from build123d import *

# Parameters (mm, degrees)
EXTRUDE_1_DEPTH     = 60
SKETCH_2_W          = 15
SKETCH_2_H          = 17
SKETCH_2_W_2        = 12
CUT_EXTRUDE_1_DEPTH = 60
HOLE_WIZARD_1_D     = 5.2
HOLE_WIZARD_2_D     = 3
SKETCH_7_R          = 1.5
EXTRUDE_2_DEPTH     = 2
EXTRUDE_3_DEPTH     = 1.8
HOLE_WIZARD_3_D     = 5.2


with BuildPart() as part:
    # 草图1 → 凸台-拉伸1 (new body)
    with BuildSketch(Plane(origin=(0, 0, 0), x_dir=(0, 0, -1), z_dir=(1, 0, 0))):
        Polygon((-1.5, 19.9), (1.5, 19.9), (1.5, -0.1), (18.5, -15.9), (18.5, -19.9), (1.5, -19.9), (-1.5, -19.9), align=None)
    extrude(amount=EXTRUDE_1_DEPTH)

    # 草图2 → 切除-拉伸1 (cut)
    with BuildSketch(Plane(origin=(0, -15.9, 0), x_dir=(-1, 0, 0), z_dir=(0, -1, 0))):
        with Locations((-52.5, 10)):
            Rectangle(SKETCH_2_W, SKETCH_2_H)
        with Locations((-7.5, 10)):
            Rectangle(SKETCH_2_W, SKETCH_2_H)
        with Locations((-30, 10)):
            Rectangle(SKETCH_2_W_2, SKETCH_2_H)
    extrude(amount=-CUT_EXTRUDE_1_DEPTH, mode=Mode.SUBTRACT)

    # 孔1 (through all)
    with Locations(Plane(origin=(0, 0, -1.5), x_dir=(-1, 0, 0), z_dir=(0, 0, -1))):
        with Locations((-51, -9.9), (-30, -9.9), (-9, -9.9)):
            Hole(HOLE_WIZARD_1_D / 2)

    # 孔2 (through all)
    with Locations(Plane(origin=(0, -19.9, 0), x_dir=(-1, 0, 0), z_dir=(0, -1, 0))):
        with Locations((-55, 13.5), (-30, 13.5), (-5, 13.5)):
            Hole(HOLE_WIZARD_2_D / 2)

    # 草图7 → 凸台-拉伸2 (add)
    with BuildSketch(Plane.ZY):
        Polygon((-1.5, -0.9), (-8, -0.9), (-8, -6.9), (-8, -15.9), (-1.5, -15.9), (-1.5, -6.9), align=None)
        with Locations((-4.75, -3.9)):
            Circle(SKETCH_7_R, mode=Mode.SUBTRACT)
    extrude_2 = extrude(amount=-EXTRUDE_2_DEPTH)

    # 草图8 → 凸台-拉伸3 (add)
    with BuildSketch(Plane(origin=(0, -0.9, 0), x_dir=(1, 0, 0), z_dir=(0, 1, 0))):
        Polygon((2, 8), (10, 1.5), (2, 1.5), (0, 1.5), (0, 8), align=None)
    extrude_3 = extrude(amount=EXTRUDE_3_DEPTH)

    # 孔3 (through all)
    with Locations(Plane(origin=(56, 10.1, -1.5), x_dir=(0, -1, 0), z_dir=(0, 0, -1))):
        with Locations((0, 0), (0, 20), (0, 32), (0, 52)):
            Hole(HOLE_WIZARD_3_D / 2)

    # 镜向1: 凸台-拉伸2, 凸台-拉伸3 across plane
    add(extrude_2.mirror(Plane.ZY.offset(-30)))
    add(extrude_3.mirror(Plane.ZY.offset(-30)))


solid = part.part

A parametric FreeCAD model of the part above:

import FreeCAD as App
import Part
import Sketcher
Q = App.Units.Quantity


def add_polygon(sketch, points):
    """Adds a closed chain of lines whose ends are joined by coincident constraints."""
    first, n = sketch.GeometryCount, len(points)
    for a, b in zip(points, points[1:] + points[:1]):
        sketch.addGeometry(Part.LineSegment(App.Vector(*a, 0), App.Vector(*b, 0)), False)
    for i in range(n):
        sketch.addConstraint(Sketcher.Constraint("Coincident", first + i, 2, first + (i + 1) % n, 1))

doc = App.newDocument("Part")
body = doc.addObject("PartDesign::Body", "Body")

sketch1 = body.newObject("Sketcher::SketchObject", "Sketch")
sketch1.AttachmentSupport = (doc.getObject("YZ_Plane"), [""])
sketch1.MapMode = "FlatFace"
add_polygon(sketch1, [(19.9, -1.5), (19.9, 1.5), (-19.9, 1.5), (-19.9, -18.5), (-15.9, -18.5), (-0.1, -1.5)])
sketch1.addConstraint([
    Sketcher.Constraint("Vertical", 0),
    Sketcher.Constraint("Horizontal", 1),
    Sketcher.Constraint("Vertical", 2),
    Sketcher.Constraint("Horizontal", 3),
    Sketcher.Constraint("Horizontal", 5),
    Sketcher.Constraint("Symmetric", 1, 2, 5, 2, -1, 1),
    Sketcher.Constraint("Equal", 5, 2),
    Sketcher.Constraint("DistanceX", 3, 1, 3, 2, Q("4 mm")),
    Sketcher.Constraint("DistanceX", 5, 1, 5, 2, Q("20 mm")),
    Sketcher.Constraint("DistanceY", 0, 1, 0, 2, Q("3 mm")),
    Sketcher.Constraint("DistanceX", 1, 2, 1, 1, Q("39.8 mm")),
])
pad1 = body.newObject("PartDesign::Pad", "Pad")
pad1.Profile = sketch1
pad1.Length = 60

sketch2 = body.newObject("Sketcher::SketchObject", "Sketch001")
sketch2.AttachmentSupport = (doc.getObject("XZ_Plane"), [""])
sketch2.MapMode = "FlatFace"
sketch2.AttachmentOffset = App.Placement(App.Vector(0, 0, 15.9), App.Rotation())
add_polygon(sketch2, [(60, -18), (60, -2), (45, -2), (45, -18)])
add_polygon(sketch2, [(15, -18), (15, -2), (0, -2), (0, -18)])
add_polygon(sketch2, [(36, -18), (36, -2), (24, -2), (24, -18)])
sketch2.addConstraint([
    Sketcher.Constraint("Vertical", 0),
    Sketcher.Constraint("Horizontal", 1),
    Sketcher.Constraint("Vertical", 2),
    Sketcher.Constraint("Horizontal", 3),
    Sketcher.Constraint("Vertical", 4),
    Sketcher.Constraint("Horizontal", 5),
    Sketcher.Constraint("Vertical", 6),
    Sketcher.Constraint("Horizontal", 7),
    Sketcher.Constraint("Vertical", 8),
    Sketcher.Constraint("Horizontal", 9),
    Sketcher.Constraint("Vertical", 10),
    Sketcher.Constraint("Horizontal", 11),
    Sketcher.Constraint("PointOnObject", 5, 2, -2),
    Sketcher.Constraint("Horizontal", 1, 2, 4, 2),
    Sketcher.Constraint("Horizontal", 3, 2, 6, 2),
    Sketcher.Constraint("Horizontal", 5, 2, 8, 2),
    Sketcher.Constraint("Horizontal", 7, 2, 10, 2),
    Sketcher.Constraint("Equal", 3, 5),
    Sketcher.Constraint("DistanceX", 1, 2, 1, 1, Q("15 mm")),
    Sketcher.Constraint("DistanceX", 9, 2, 9, 1, Q("12 mm")),
    Sketcher.Constraint("DistanceY", 0, 1, 0, 2, Q("17 mm")),
    Sketcher.Constraint("DistanceX", -1, 1, 0, 2, Q("60 mm")),
    Sketcher.Constraint("DistanceX", -1, 1, 8, 2, Q("36 mm")),
    Sketcher.Constraint("DistanceY", 0, 2, -1, 1, Q("1.5 mm")),
])
pocket1 = body.newObject("PartDesign::Pocket", "Pocket")
pocket1.Profile = sketch2
pocket1.Length = 60

sketch3 = body.newObject("Sketcher::SketchObject", "Sketch002")
sketch3.AttachmentSupport = (doc.getObject("XY_Plane"), [""])
sketch3.MapMode = "FlatFace"
sketch3.AttachmentOffset = App.Placement(App.Vector(0, 0, -1.5), App.Rotation())
sketch3.addGeometry([
    Part.Circle(App.Vector(51, -9.9, 0), App.Vector(0, 0, 1), 2.6),
    Part.Circle(App.Vector(30, -9.9, 0), App.Vector(0, 0, 1), 2.6),
    Part.Circle(App.Vector(9, -9.9, 0), App.Vector(0, 0, 1), 2.6),
], False)
sketch3.addConstraint([
    Sketcher.Constraint("Equal", 0, 1),
    Sketcher.Constraint("Equal", 1, 2),
    Sketcher.Constraint("Horizontal", 0, 3, 1, 3),
    Sketcher.Constraint("Horizontal", 1, 3, 2, 3),
    Sketcher.Constraint("Diameter", 0, Q("5.2 mm")),
    Sketcher.Constraint("DistanceX", -1, 1, 0, 3, Q("51 mm")),
    Sketcher.Constraint("DistanceX", -1, 1, 1, 3, Q("30 mm")),
    Sketcher.Constraint("DistanceX", -1, 1, 2, 3, Q("9 mm")),
    Sketcher.Constraint("DistanceY", 0, 3, -1, 1, Q("9.9 mm")),
])
doc.recompute()
hole = body.newObject("PartDesign::Hole", "Hole")
hole.Profile = sketch3
hole.ThreadType = "None"
hole.Diameter = 5.2
hole.DepthType = "ThroughAll"
hole.Reversed = True

sketch4 = body.newObject("Sketcher::SketchObject", "Sketch003")
sketch4.AttachmentSupport = (doc.getObject("XZ_Plane"), [""])
sketch4.MapMode = "FlatFace"
sketch4.AttachmentOffset = App.Placement(App.Vector(0, 0, 19.9), App.Rotation())
sketch4.addGeometry([
    Part.Circle(App.Vector(55, -13.5, 0), App.Vector(0, 0, 1), 1.5),
    Part.Circle(App.Vector(30, -13.5, 0), App.Vector(0, 0, 1), 1.5),
    Part.Circle(App.Vector(5, -13.5, 0), App.Vector(0, 0, 1), 1.5),
], False)
sketch4.addConstraint([
    Sketcher.Constraint("Equal", 0, 1),
    Sketcher.Constraint("Equal", 1, 2),
    Sketcher.Constraint("Horizontal", 0, 3, 1, 3),
    Sketcher.Constraint("Horizontal", 1, 3, 2, 3),
    Sketcher.Constraint("Diameter", 0, Q("3 mm")),
    Sketcher.Constraint("DistanceX", -1, 1, 0, 3, Q("55 mm")),
    Sketcher.Constraint("DistanceX", -1, 1, 1, 3, Q("30 mm")),
    Sketcher.Constraint("DistanceX", -1, 1, 2, 3, Q("5 mm")),
    Sketcher.Constraint("DistanceY", 0, 3, -1, 1, Q("13.5 mm")),
])
doc.recompute()
hole2 = body.newObject("PartDesign::Hole", "Hole001")
hole2.Profile = sketch4
hole2.ThreadType = "None"
hole2.Diameter = 3
hole2.DepthType = "ThroughAll"

sketch5 = body.newObject("Sketcher::SketchObject", "Sketch004")
sketch5.AttachmentSupport = (doc.getObject("YZ_Plane"), [""])
sketch5.MapMode = "FlatFace"
add_polygon(sketch5, [(-0.9, -1.5), (-0.9, -8), (-15.9, -8), (-15.9, -1.5)])
sketch5.addGeometry(Part.Circle(App.Vector(-3.9, -4.8, 0), App.Vector(0, 0, 1), 1.5), False)
sketch5.addConstraint([
    Sketcher.Constraint("Vertical", 0),
    Sketcher.Constraint("Horizontal", 1),
    Sketcher.Constraint("Vertical", 2),
    Sketcher.Constraint("Horizontal", 3),
    Sketcher.Constraint("Diameter", 4, Q("3 mm")),
    Sketcher.Constraint("DistanceX", 1, 2, 1, 1, Q("15 mm")),
    Sketcher.Constraint("DistanceY", 0, 2, 0, 1, Q("6.5 mm")),
    Sketcher.Constraint("DistanceY", 0, 2, -1, 1, Q("8 mm")),
    Sketcher.Constraint("DistanceX", 4, 3, 0, 2, Q("3 mm")),
    Sketcher.Constraint("DistanceX", 4, 3, -1, 1, Q("3.9 mm")),
    Sketcher.Constraint("DistanceY", 4, 3, -1, 1, Q("4.75 mm")),
])
pad2 = body.newObject("PartDesign::Pad", "Pad001")
pad2.Profile = sketch5
pad2.Length = 2

sketch6 = body.newObject("Sketcher::SketchObject", "Sketch005")
sketch6.AttachmentSupport = (doc.getObject("XZ_Plane"), [""])
sketch6.MapMode = "FlatFace"
sketch6.AttachmentOffset = App.Placement(App.Vector(0, 0, 0.9), App.Rotation())
add_polygon(sketch6, [(10, -1.5), (2, -8), (0, -8), (0, -1.5)])
sketch6.addConstraint([
    Sketcher.Constraint("Horizontal", 1),
    Sketcher.Constraint("Vertical", 2),
    Sketcher.Constraint("Horizontal", 3),
    Sketcher.Constraint("PointOnObject", 1, 2, -2),
    Sketcher.Constraint("DistanceX", 1, 2, 1, 1, Q("2 mm")),
    Sketcher.Constraint("DistanceX", 3, 1, 3, 2, Q("10 mm")),
    Sketcher.Constraint("DistanceY", 2, 1, 2, 2, Q("6.5 mm")),
    Sketcher.Constraint("DistanceY", 0, 2, -1, 1, Q("8 mm")),
])
pad3 = body.newObject("PartDesign::Pad", "Pad002")
pad3.Profile = sketch6
pad3.Length = 1.8
pad3.Reversed = True

sketch7 = body.newObject("Sketcher::SketchObject", "Sketch006")
sketch7.AttachmentSupport = (doc.getObject("XY_Plane"), [""])
sketch7.MapMode = "FlatFace"
sketch7.AttachmentOffset = App.Placement(App.Vector(0, 0, -1.5), App.Rotation())
sketch7.addGeometry([
    Part.Circle(App.Vector(56, 10.1, 0), App.Vector(0, 0, 1), 2.6),
    Part.Circle(App.Vector(36, 10.1, 0), App.Vector(0, 0, 1), 2.6),
    Part.Circle(App.Vector(24, 10.1, 0), App.Vector(0, 0, 1), 2.6),
    Part.Circle(App.Vector(4, 10.1, 0), App.Vector(0, 0, 1), 2.6),
], False)
sketch7.addConstraint([
    Sketcher.Constraint("Equal", 0, 1),
    Sketcher.Constraint("Equal", 1, 2),
    Sketcher.Constraint("Equal", 2, 3),
    Sketcher.Constraint("Horizontal", 0, 3, 1, 3),
    Sketcher.Constraint("Horizontal", 1, 3, 2, 3),
    Sketcher.Constraint("Horizontal", 2, 3, 3, 3),
    Sketcher.Constraint("Diameter", 0, Q("5.2 mm")),
    Sketcher.Constraint("DistanceX", -1, 1, 0, 3, Q("56 mm")),
    Sketcher.Constraint("DistanceX", -1, 1, 1, 3, Q("36 mm")),
    Sketcher.Constraint("DistanceX", -1, 1, 2, 3, Q("24 mm")),
    Sketcher.Constraint("DistanceX", -1, 1, 3, 3, Q("4 mm")),
    Sketcher.Constraint("DistanceY", -1, 1, 0, 3, Q("10.1 mm")),
])
doc.recompute()
hole3 = body.newObject("PartDesign::Hole", "Hole002")
hole3.Profile = sketch7
hole3.ThreadType = "None"
hole3.Diameter = 5.2
hole3.DepthType = "ThroughAll"
hole3.Reversed = True
doc.recompute()

datumplane = body.newObject("PartDesign::Plane", "DatumPlane")
datumplane.AttachmentSupport = (doc.getObject("YZ_Plane"), [""])
datumplane.MapMode = "FlatFace"
datumplane.AttachmentOffset = App.Placement(App.Vector(0, 0, 30), App.Rotation())
mirrored = body.newObject("PartDesign::Mirrored", "Mirrored")
mirrored.Originals = [pad2, pad3]
mirrored.MirrorPlane = (datumplane, [""])
body.Tip = mirrored

doc.recompute()
